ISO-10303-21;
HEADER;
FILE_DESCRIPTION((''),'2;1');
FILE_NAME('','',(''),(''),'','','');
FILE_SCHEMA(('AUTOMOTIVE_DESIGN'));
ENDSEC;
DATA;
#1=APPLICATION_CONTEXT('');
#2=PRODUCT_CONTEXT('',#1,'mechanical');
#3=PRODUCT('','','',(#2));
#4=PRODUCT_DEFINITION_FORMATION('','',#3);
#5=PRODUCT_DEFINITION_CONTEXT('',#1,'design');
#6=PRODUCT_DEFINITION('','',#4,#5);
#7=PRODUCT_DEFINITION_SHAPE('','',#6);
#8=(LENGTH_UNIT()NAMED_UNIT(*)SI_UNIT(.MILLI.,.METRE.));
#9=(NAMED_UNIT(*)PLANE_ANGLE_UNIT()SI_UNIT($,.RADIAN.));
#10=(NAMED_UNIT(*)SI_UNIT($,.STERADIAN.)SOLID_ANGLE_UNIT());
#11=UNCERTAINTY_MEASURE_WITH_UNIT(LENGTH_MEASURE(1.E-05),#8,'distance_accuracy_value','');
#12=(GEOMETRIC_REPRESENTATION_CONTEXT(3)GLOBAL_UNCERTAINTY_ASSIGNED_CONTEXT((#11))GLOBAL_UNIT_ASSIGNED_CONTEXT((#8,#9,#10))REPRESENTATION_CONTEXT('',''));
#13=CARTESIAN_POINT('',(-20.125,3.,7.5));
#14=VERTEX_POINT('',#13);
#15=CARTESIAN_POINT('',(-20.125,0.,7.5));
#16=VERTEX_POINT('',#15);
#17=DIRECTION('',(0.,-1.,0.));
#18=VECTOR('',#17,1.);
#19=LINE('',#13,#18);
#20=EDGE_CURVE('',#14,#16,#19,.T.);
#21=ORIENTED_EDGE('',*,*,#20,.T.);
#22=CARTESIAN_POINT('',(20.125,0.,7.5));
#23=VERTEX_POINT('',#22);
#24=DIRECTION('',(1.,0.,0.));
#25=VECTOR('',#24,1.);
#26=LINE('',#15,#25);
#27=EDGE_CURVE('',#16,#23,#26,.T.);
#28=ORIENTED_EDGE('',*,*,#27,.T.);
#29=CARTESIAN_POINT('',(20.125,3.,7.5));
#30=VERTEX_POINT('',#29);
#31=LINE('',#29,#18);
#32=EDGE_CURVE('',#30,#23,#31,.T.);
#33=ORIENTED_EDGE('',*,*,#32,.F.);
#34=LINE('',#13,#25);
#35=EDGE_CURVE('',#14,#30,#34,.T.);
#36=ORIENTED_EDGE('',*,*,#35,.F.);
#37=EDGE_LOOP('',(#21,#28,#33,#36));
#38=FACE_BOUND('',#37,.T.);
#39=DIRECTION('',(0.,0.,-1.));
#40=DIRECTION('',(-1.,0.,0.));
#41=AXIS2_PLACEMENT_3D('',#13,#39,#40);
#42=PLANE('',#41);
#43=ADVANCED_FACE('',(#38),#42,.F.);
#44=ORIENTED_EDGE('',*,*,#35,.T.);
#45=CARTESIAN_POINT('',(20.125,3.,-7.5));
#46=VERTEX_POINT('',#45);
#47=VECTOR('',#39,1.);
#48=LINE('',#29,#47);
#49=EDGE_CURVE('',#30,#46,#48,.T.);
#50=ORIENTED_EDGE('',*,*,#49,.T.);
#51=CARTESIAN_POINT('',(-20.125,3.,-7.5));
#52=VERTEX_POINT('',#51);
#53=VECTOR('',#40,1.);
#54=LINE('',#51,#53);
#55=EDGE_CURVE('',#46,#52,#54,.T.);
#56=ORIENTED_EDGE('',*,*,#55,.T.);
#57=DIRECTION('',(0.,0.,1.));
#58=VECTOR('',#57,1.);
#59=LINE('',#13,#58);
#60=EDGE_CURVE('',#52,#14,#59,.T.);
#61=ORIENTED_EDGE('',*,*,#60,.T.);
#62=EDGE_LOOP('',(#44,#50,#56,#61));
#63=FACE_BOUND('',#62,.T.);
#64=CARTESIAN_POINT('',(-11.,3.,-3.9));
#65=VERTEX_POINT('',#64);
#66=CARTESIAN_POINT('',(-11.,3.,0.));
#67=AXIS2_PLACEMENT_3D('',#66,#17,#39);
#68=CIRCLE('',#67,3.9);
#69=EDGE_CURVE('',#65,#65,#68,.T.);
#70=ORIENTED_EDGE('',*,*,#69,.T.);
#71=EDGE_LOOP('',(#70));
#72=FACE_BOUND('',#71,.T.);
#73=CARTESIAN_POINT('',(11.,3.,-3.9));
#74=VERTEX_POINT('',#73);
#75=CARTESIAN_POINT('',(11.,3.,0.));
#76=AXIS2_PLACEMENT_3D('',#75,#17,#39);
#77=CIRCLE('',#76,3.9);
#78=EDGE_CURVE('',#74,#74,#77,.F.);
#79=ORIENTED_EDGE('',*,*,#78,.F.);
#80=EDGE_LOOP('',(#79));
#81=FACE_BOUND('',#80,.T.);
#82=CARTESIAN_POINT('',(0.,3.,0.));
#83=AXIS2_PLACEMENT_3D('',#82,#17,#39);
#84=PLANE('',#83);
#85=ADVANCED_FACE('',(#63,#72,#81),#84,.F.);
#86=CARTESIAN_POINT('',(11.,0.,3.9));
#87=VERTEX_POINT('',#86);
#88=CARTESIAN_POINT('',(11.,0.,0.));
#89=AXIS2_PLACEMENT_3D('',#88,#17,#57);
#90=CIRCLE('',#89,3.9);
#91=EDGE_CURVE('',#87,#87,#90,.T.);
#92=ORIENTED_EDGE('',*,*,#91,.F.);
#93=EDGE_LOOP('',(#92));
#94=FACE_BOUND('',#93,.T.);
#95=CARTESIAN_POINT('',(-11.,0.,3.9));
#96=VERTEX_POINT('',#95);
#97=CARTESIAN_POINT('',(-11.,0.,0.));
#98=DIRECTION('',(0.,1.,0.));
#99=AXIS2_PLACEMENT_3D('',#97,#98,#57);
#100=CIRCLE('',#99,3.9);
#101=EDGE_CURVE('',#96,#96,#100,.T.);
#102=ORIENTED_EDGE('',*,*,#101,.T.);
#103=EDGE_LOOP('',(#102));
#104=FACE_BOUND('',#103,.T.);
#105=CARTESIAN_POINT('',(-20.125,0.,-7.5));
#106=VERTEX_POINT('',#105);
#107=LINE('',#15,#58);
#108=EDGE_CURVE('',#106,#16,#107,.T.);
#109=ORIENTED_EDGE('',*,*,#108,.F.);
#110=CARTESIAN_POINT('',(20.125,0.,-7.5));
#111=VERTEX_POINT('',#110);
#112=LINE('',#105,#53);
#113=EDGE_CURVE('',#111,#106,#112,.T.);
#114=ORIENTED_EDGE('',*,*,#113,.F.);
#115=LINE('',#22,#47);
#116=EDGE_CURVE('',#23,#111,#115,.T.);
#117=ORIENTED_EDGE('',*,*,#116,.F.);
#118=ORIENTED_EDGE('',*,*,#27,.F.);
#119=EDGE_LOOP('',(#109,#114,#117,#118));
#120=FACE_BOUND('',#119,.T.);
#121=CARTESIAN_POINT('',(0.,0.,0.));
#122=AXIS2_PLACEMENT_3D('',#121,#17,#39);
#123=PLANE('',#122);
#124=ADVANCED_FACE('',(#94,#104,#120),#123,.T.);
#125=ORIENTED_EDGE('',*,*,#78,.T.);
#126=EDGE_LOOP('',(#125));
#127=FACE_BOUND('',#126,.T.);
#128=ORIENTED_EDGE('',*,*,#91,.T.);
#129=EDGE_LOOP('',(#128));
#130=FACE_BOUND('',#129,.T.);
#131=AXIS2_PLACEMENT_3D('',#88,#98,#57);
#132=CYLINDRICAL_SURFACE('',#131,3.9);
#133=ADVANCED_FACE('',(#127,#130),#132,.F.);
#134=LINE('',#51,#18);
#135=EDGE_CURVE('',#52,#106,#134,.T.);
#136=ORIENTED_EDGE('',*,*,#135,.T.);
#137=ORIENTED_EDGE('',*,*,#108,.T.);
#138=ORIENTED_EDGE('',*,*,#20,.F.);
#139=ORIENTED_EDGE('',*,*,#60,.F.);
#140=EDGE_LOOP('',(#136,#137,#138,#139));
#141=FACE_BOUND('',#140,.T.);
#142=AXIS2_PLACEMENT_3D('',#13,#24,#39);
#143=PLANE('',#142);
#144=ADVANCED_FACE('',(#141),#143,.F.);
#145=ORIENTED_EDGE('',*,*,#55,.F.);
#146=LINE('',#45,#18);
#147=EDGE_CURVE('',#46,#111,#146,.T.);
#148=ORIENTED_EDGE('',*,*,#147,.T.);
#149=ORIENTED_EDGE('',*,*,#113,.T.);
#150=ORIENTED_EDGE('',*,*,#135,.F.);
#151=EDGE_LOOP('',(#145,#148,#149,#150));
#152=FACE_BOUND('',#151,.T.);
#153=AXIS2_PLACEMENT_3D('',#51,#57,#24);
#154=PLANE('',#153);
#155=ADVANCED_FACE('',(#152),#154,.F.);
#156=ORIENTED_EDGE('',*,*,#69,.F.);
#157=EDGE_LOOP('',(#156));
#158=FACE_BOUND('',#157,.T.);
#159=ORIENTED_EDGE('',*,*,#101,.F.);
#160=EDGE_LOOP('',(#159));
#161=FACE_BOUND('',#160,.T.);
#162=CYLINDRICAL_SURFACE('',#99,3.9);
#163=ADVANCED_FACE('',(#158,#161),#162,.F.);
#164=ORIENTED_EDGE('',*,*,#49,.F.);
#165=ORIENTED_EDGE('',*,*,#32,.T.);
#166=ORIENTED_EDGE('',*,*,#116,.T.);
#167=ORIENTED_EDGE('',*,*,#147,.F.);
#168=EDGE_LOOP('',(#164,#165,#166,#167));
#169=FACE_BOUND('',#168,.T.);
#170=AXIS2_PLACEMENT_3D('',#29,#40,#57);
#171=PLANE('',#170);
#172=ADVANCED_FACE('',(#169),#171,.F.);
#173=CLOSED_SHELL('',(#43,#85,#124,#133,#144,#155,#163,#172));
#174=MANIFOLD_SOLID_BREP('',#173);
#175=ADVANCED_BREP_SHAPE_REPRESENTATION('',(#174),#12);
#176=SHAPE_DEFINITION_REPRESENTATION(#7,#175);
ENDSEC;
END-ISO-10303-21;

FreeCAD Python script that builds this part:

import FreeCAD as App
import Part
import Sketcher
from FreeCAD import Vector


def add_polygon(sketch, points):
    """Adds a closed chain of lines whose ends are joined by coincident constraints."""
    first, n = sketch.GeometryCount, len(points)
    for a, b in zip(points, points[1:] + points[:1]):
        sketch.addGeometry(Part.LineSegment(App.Vector(*a, 0), App.Vector(*b, 0)), False)
    for i in range(n):
        sketch.addConstraint(Sketcher.Constraint("Coincident", first + i, 2, first + (i + 1) % n, 1))

doc = App.newDocument("Part")
body = doc.addObject("PartDesign::Body", "Body")

# Sketch on XZ plane
sketch1 = body.newObject("Sketcher::SketchObject", "Sketch")
sketch1.AttachmentSupport = (doc.getObject("XZ_Plane"), [""])
sketch1.MapMode = "FlatFace"
add_polygon(sketch1, [(-20, -8), (-20, 8), (20, 8), (20, -8)])  # lines 0-3
sketch1.addConstraint([
    Sketcher.Constraint("Vertical", 0),
    Sketcher.Constraint("Horizontal", 1),
    Sketcher.Constraint("Vertical", 2),
    Sketcher.Constraint("Horizontal", 3),
    Sketcher.Constraint("Symmetric", 0, 2, 2, 2, -1, 1),
    Sketcher.Constraint("DistanceY", 0, 1, 0, 2, 15.0),
    Sketcher.Constraint("DistanceX", 1, 1, 1, 2, 40.25),
])
pad1 = body.newObject("PartDesign::Pad", "Pad")
pad1.Profile = sketch1
pad1.Length = 3
pad1.Reversed = True

# Sketch on XZ plane
sketch2 = body.newObject("Sketcher::SketchObject", "Sketch001")
sketch2.AttachmentSupport = (doc.getObject("XZ_Plane"), [""])
sketch2.MapMode = "FlatFace"
sketch2.AttachmentOffset = App.Placement(Vector(0, 0, 1), App.Rotation())
sketch2.addGeometry(Part.Circle(Vector(-11, 0, 0), Vector(0, 0, 1), 3.9), False)
sketch2.addConstraint([
    Sketcher.Constraint("PointOnObject", 0, 3, -1),
    Sketcher.Constraint("Diameter", 0, 7.8),
    Sketcher.Constraint("DistanceX", 0, 3, -1, 1, 11.0),
])
pocket1 = body.newObject("PartDesign::Pocket", "Pocket")
pocket1.Profile = sketch2
pocket1.Length = 5
doc.recompute()

mirrored = body.newObject("PartDesign::Mirrored", "Mirrored")
mirrored.Originals = [pocket1]
mirrored.MirrorPlane = (doc.getObject("YZ_Plane"), [""])
body.Tip = mirrored

doc.recompute()
